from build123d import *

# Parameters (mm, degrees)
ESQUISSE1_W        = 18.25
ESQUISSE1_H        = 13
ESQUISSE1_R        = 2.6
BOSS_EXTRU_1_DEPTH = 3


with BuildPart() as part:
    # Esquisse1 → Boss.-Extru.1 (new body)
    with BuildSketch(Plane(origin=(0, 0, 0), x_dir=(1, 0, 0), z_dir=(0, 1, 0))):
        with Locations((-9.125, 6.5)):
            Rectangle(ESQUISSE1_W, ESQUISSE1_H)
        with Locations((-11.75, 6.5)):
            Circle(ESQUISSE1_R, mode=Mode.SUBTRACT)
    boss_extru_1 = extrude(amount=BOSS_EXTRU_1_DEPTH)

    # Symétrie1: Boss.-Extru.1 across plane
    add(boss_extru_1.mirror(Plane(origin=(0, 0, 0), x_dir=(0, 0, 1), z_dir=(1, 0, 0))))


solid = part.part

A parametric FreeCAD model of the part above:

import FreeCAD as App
import Part
import Sketcher

V = App.Vector
Q = App.Units.Quantity

doc = App.newDocument("Part")
body = doc.addObject("PartDesign::Body", "Body")

# Sketch on XZ plane
sketch1 = body.newObject("Sketcher::SketchObject", "Sketch")
sketch1.AttachmentSupport = (doc.getObject("XZ_Plane"), [""])
sketch1.MapMode = "FlatFace"
sketch1.addGeometry(Part.LineSegment(V(-18.2, -13, 0), V(-18.2, 0, 0)), False)
sketch1.addGeometry(Part.LineSegment(V(-18.2, 0, 0), V(0, 0, 0)), False)
sketch1.addGeometry(Part.LineSegment(V(0, 0, 0), V(0, -13, 0)), False)
sketch1.addGeometry(Part.LineSegment(V(0, -13, 0), V(-18.2, -13, 0)), False)
sketch1.addGeometry(Part.Circle(V(-11.8, -6.5, 0), V(0, 0, 1), 2.6), False)
sketch1.addConstraint(Sketcher.Constraint("Coincident", 0, 2, 1, 1))
sketch1.addConstraint(Sketcher.Constraint("Coincident", 1, 2, 2, 1))
sketch1.addConstraint(Sketcher.Constraint("Coincident", 2, 2, 3, 1))
sketch1.addConstraint(Sketcher.Constraint("Coincident", 3, 2, 0, 1))
sketch1.addConstraint(Sketcher.Constraint("Vertical", 0))
sketch1.addConstraint(Sketcher.Constraint("Horizontal", 1))
sketch1.addConstraint(Sketcher.Constraint("Vertical", 2))
sketch1.addConstraint(Sketcher.Constraint("Horizontal", 3))
sketch1.addConstraint(Sketcher.Constraint("Coincident", 1, 2, -1, 1))
sketch1.addConstraint(Sketcher.Constraint("Diameter", 4, Q("5.2 mm")))
sketch1.addConstraint(Sketcher.Constraint("DistanceY", 0, 1, 0, 2, Q("13 mm")))
sketch1.addConstraint(Sketcher.Constraint("DistanceX", 1, 1, 1, 2, Q("18.25 mm")))
sketch1.addConstraint(Sketcher.Constraint("DistanceY", 4, 3, -1, 1, Q("6.5 mm")))
sketch1.addConstraint(Sketcher.Constraint("DistanceX", 0, 2, 4, 3, Q("6.5 mm")))
pad1 = body.newObject("PartDesign::Pad", "Pad")
pad1.Profile = sketch1
pad1.Length = 3
pad1.Reversed = True
doc.recompute()

mirrored = body.newObject("PartDesign::Mirrored", "Mirrored")
mirrored.Originals = [pad1]
mirrored.MirrorPlane = (doc.getObject("YZ_Plane"), [""])
body.Tip = mirrored

doc.recompute()
